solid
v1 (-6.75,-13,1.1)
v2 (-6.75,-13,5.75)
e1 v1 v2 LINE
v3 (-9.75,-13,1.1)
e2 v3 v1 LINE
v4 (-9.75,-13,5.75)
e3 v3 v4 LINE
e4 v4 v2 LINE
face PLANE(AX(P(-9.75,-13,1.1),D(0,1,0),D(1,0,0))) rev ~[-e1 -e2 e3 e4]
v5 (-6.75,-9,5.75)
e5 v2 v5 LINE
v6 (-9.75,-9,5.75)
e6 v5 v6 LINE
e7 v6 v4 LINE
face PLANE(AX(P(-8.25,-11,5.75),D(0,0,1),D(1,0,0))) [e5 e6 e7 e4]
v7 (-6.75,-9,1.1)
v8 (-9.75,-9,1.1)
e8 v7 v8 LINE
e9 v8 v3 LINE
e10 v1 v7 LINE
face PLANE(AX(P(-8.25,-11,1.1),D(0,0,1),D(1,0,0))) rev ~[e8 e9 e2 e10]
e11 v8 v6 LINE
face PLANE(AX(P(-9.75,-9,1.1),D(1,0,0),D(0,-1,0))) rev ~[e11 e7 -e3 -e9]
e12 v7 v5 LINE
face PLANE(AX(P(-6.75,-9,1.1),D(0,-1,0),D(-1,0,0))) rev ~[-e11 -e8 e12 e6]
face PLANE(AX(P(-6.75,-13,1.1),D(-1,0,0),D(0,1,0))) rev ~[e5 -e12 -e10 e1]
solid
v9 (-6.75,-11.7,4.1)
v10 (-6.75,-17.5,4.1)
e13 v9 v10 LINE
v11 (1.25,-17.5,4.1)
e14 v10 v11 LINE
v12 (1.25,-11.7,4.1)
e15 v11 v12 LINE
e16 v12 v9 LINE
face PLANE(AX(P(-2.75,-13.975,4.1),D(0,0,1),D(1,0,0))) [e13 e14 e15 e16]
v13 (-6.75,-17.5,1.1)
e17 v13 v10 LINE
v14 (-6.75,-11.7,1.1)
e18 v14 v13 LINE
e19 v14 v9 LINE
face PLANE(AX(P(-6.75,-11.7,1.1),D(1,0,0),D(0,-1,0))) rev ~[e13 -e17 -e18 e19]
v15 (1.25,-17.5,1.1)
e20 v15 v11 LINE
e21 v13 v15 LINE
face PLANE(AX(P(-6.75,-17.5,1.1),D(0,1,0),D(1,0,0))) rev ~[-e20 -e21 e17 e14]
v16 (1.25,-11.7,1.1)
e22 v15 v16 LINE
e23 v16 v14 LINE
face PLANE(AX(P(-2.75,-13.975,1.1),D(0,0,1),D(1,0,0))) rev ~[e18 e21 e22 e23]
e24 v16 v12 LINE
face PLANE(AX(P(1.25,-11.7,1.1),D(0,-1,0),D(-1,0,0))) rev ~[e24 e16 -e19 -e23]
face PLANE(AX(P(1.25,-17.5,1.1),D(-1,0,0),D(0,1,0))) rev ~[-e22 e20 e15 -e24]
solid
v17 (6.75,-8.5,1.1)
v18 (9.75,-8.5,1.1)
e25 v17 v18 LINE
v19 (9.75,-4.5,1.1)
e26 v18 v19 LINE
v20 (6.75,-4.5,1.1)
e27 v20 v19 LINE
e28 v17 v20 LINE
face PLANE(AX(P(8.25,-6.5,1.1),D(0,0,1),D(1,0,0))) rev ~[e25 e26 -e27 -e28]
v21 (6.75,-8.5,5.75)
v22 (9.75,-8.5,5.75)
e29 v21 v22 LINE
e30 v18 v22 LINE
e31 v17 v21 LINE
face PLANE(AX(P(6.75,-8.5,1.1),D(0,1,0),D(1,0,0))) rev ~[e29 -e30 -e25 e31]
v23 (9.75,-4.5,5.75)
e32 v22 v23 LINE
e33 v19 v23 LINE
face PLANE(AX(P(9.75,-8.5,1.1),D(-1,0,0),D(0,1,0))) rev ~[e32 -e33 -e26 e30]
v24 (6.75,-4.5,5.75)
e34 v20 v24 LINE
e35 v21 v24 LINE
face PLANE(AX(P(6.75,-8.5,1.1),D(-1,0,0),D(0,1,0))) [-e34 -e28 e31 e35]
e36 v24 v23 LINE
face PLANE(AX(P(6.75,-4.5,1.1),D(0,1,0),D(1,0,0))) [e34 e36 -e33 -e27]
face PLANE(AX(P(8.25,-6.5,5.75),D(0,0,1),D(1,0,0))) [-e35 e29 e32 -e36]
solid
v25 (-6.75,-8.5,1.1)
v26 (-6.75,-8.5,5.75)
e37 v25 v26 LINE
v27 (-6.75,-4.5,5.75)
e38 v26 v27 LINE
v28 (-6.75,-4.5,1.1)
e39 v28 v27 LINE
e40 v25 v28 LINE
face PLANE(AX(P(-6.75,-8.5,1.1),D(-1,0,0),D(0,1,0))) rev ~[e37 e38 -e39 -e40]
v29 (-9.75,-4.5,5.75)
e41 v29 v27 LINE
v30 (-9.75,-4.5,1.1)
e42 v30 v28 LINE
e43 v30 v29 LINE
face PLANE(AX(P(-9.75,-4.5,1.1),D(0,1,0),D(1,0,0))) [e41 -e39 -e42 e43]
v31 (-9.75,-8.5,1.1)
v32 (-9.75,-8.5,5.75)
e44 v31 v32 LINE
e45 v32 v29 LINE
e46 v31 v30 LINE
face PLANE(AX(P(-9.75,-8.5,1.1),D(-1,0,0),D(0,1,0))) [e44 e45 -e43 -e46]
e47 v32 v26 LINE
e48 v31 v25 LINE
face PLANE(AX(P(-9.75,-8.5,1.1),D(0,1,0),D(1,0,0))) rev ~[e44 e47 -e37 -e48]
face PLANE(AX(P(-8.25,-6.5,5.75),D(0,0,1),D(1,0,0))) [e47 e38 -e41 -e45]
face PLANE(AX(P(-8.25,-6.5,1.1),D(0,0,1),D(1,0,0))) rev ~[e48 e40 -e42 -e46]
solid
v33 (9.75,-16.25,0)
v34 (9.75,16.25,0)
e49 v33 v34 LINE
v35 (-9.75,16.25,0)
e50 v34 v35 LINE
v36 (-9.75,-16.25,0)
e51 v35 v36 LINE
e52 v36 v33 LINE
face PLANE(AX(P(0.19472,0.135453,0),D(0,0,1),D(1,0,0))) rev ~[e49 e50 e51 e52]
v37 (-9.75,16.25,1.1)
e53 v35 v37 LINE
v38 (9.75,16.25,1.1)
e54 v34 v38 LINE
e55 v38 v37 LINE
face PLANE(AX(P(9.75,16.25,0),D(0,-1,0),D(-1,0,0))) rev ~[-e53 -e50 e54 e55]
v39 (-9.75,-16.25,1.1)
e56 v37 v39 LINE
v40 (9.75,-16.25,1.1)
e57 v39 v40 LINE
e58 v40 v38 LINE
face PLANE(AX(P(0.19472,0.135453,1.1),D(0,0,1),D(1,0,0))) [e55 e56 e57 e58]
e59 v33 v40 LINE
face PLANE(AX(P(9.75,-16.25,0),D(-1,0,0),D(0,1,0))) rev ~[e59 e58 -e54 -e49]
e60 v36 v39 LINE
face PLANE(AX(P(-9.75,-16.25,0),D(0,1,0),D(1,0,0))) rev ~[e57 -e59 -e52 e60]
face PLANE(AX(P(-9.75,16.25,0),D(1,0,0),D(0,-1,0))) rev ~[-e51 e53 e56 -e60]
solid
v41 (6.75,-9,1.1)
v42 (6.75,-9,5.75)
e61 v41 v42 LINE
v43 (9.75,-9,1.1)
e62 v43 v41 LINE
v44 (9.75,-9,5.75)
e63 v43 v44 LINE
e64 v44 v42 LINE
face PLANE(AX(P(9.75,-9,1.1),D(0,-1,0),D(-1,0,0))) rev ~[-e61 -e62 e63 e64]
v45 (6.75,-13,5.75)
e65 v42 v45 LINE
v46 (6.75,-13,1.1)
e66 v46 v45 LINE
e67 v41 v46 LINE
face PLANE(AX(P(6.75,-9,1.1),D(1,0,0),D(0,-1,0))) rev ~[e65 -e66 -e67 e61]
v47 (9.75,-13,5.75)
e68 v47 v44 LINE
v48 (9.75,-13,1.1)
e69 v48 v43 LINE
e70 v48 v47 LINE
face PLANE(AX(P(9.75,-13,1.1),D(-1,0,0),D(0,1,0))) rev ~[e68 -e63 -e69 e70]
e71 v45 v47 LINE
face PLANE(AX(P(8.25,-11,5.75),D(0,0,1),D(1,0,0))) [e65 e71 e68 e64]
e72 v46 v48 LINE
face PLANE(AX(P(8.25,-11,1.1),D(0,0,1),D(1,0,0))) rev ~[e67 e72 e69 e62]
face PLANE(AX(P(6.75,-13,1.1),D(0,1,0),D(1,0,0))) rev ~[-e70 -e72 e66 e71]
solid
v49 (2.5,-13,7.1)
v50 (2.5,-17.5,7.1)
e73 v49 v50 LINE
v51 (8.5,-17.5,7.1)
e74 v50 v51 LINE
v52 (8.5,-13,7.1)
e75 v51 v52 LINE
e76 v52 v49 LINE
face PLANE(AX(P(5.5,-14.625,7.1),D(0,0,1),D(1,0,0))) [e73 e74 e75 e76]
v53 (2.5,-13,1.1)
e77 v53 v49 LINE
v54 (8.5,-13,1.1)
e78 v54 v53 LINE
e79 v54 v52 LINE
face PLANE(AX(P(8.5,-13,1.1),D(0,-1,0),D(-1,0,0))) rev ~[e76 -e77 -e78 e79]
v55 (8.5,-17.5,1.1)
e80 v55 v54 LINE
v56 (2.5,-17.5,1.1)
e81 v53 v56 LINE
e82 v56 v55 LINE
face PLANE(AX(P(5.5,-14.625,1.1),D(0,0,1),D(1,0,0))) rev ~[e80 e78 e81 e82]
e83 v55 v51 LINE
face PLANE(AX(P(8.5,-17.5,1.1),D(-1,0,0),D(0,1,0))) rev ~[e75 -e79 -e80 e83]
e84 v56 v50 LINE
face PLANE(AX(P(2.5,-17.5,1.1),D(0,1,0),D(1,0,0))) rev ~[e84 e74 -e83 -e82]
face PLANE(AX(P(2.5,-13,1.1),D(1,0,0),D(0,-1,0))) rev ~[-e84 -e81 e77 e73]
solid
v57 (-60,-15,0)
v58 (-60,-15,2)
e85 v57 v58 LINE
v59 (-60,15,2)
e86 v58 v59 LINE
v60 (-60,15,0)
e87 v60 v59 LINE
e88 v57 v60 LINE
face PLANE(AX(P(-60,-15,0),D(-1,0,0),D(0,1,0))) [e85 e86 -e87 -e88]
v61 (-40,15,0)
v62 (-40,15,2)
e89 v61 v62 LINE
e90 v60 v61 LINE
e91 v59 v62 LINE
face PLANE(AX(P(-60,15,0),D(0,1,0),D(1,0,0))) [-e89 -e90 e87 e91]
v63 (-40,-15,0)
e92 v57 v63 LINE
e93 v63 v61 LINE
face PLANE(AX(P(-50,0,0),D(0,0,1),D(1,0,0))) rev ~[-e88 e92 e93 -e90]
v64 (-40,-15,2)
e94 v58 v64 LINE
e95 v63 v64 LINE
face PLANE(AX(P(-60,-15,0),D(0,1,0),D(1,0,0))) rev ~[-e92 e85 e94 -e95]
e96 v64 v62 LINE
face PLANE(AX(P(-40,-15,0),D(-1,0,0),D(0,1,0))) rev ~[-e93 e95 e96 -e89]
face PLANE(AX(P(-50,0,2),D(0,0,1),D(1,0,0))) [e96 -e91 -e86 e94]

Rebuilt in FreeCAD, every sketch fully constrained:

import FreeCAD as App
import Part
import Sketcher
from FreeCAD import Vector

doc = App.newDocument("Part")
params = doc.addObject("Spreadsheet::Sheet", "Params")
for row, (alias, value) in enumerate([
    ("sketch1_width", "19.5 mm"),
    ("sketch1_height", "32.5 mm"),
    ("pad1_length", "1.1 mm"),
    ("sketch2_width", "8 mm"),
    ("sketch2_height", "5.8 mm"),
    ("pad2_length", "3 mm"),
    ("sketch3_width", "3 mm"),
    ("sketch3_height", "4 mm"),
    ("pad3_length", "4.65 mm"),
    ("sketch4_width", "3 mm"),
    ("sketch4_height", "4 mm"),
    ("pad4_length", "4.65 mm"),
    ("sketch5_width", "3 mm"),
    ("sketch5_height", "4 mm"),
    ("pad5_length", "4.65 mm"),
    ("sketch6_width", "3 mm"),
    ("sketch6_height", "4 mm"),
    ("pad6_length", "4.65 mm"),
    ("sketch7_width", "6 mm"),
    ("sketch7_height", "4.5 mm"),
    ("pad7_length", "6 mm"),
    ("sketch8_width", "20 mm"),
    ("sketch8_height", "30 mm"),
    ("pad8_length", "2 mm"),
], start=1):
    params.set(f"A{row}", alias)
    params.set(f"B{row}", "=" + value)
    params.setAlias(f"B{row}", alias)

body = doc.addObject("PartDesign::Body", "Body")

sketch1 = body.newObject("Sketcher::SketchObject", "Sketch")
sketch1.AttachmentSupport = (doc.getObject("XY_Plane"), [""])
sketch1.MapMode = "FlatFace"
sketch1.addGeometry(Part.LineSegment(Vector(9.75, 16.25, 0), Vector(-9.75, 16.25, 0)), False)
sketch1.addGeometry(Part.LineSegment(Vector(-9.75, 16.25, 0), Vector(-9.75, -16.25, 0)), False)
sketch1.addGeometry(Part.LineSegment(Vector(-9.75, -16.25, 0), Vector(9.75, -16.25, 0)), False)
sketch1.addGeometry(Part.LineSegment(Vector(9.75, -16.25, 0), Vector(9.75, 16.25, 0)), False)
sketch1.addConstraint(Sketcher.Constraint("Coincident", 0, 2, 1, 1))
sketch1.addConstraint(Sketcher.Constraint("Coincident", 1, 2, 2, 1))
sketch1.addConstraint(Sketcher.Constraint("Coincident", 2, 2, 3, 1))
sketch1.addConstraint(Sketcher.Constraint("Coincident", 3, 2, 0, 1))
sketch1.addConstraint(Sketcher.Constraint("Horizontal", 0))
sketch1.addConstraint(Sketcher.Constraint("Vertical", 1))
sketch1.addConstraint(Sketcher.Constraint("Horizontal", 2))
sketch1.addConstraint(Sketcher.Constraint("Vertical", 3))
sketch1.addConstraint(Sketcher.Constraint("Symmetric", 0, 2, 2, 2, -1, 1))
sketch1.addConstraint(Sketcher.Constraint("DistanceX", 0, 2, 0, 1, 19.5))
sketch1.addConstraint(Sketcher.Constraint("DistanceY", 1, 2, 1, 1, 32.5))
sketch1.setExpression("Constraints[9]", "Params.sketch1_width")
sketch1.setExpression("Constraints[10]", "Params.sketch1_height")
pad1 = body.newObject("PartDesign::Pad", "Pad")
pad1.Profile = sketch1
pad1.setExpression("Length", "Params.pad1_length")
body2 = doc.addObject("PartDesign::Body", "Body001")

sketch2 = body2.newObject("Sketcher::SketchObject", "Sketch001")
sketch2.AttachmentSupport = (doc.getObject("XY_Plane001"), [""])
sketch2.MapMode = "FlatFace"
sketch2.AttachmentOffset = App.Placement(Vector(0, 0, 1.1), App.Rotation())
sketch2.addGeometry(Part.LineSegment(Vector(-6.75, -11.7, 0), Vector(-6.75, -17.5, 0)), False)
sketch2.addGeometry(Part.LineSegment(Vector(-6.75, -17.5, 0), Vector(1.25, -17.5, 0)), False)
sketch2.addGeometry(Part.LineSegment(Vector(1.25, -17.5, 0), Vector(1.25, -11.7, 0)), False)
sketch2.addGeometry(Part.LineSegment(Vector(1.25, -11.7, 0), Vector(-6.75, -11.7, 0)), False)
sketch2.addConstraint(Sketcher.Constraint("Coincident", 0, 2, 1, 1))
sketch2.addConstraint(Sketcher.Constraint("Coincident", 1, 2, 2, 1))
sketch2.addConstraint(Sketcher.Constraint("Coincident", 2, 2, 3, 1))
sketch2.addConstraint(Sketcher.Constraint("Coincident", 3, 2, 0, 1))
sketch2.addConstraint(Sketcher.Constraint("Vertical", 0))
sketch2.addConstraint(Sketcher.Constraint("Horizontal", 1))
sketch2.addConstraint(Sketcher.Constraint("Vertical", 2))
sketch2.addConstraint(Sketcher.Constraint("Horizontal", 3))
sketch2.addConstraint(Sketcher.Constraint("DistanceX", 1, 1, 1, 2, 8.0))
sketch2.addConstraint(Sketcher.Constraint("DistanceY", 0, 2, 0, 1, 5.8))
sketch2.addConstraint(Sketcher.Constraint("DistanceY", 0, 2, -1, 1, 17.5))
sketch2.addConstraint(Sketcher.Constraint("DistanceX", 0, 2, -1, 1, 6.75))
sketch2.setExpression("Constraints[8]", "Params.sketch2_width")
sketch2.setExpression("Constraints[9]", "Params.sketch2_height")
pad2 = body2.newObject("PartDesign::Pad", "Pad001")
pad2.Profile = sketch2
pad2.setExpression("Length", "Params.pad2_length")
body3 = doc.addObject("PartDesign::Body", "Body002")

sketch3 = body3.newObject("Sketcher::SketchObject", "Sketch002")
sketch3.AttachmentSupport = (doc.getObject("XY_Plane002"), [""])
sketch3.MapMode = "FlatFace"
sketch3.AttachmentOffset = App.Placement(Vector(0, 0, 1.1), App.Rotation())
sketch3.addGeometry(Part.LineSegment(Vector(-6.75, -9, 0), Vector(-9.75, -9, 0)), False)
sketch3.addGeometry(Part.LineSegment(Vector(-9.75, -9, 0), Vector(-9.75, -13, 0)), False)
sketch3.addGeometry(Part.LineSegment(Vector(-9.75, -13, 0), Vector(-6.75, -13, 0)), False)
sketch3.addGeometry(Part.LineSegment(Vector(-6.75, -13, 0), Vector(-6.75, -9, 0)), False)
sketch3.addConstraint(Sketcher.Constraint("Coincident", 0, 2, 1, 1))
sketch3.addConstraint(Sketcher.Constraint("Coincident", 1, 2, 2, 1))
sketch3.addConstraint(Sketcher.Constraint("Coincident", 2, 2, 3, 1))
sketch3.addConstraint(Sketcher.Constraint("Coincident", 3, 2, 0, 1))
sketch3.addConstraint(Sketcher.Constraint("Horizontal", 0))
sketch3.addConstraint(Sketcher.Constraint("Vertical", 1))
sketch3.addConstraint(Sketcher.Constraint("Horizontal", 2))
sketch3.addConstraint(Sketcher.Constraint("Vertical", 3))
sketch3.addConstraint(Sketcher.Constraint("DistanceX", 0, 2, 0, 1, 3.0))
sketch3.addConstraint(Sketcher.Constraint("DistanceY", 1, 2, 1, 1, 4.0))
sketch3.addConstraint(Sketcher.Constraint("DistanceY", 0, 2, -1, 1, 9.0))
sketch3.addConstraint(Sketcher.Constraint("DistanceX", 0, 2, -1, 1, 9.75))
sketch3.setExpression("Constraints[8]", "Params.sketch3_width")
sketch3.setExpression("Constraints[9]", "Params.sketch3_height")
pad3 = body3.newObject("PartDesign::Pad", "Pad002")
pad3.Profile = sketch3
pad3.setExpression("Length", "Params.pad3_length")
body4 = doc.addObject("PartDesign::Body", "Body003")

sketch4 = body4.newObject("Sketcher::SketchObject", "Sketch003")
sketch4.AttachmentSupport = (doc.getObject("XY_Plane003"), [""])
sketch4.MapMode = "FlatFace"
sketch4.AttachmentOffset = App.Placement(Vector(0, 0, 1.1), App.Rotation())
sketch4.addGeometry(Part.LineSegment(Vector(-9.75, -4.5, 0), Vector(-9.75, -8.5, 0)), False)
sketch4.addGeometry(Part.LineSegment(Vector(-9.75, -8.5, 0), Vector(-6.75, -8.5, 0)), False)
sketch4.addGeometry(Part.LineSegment(Vector(-6.75, -8.5, 0), Vector(-6.75, -4.5, 0)), False)
sketch4.addGeometry(Part.LineSegment(Vector(-6.75, -4.5, 0), Vector(-9.75, -4.5, 0)), False)
sketch4.addConstraint(Sketcher.Constraint("Coincident", 0, 2, 1, 1))
sketch4.addConstraint(Sketcher.Constraint("Coincident", 1, 2, 2, 1))
sketch4.addConstraint(Sketcher.Constraint("Coincident", 2, 2, 3, 1))
sketch4.addConstraint(Sketcher.Constraint("Coincident", 3, 2, 0, 1))
sketch4.addConstraint(Sketcher.Constraint("Vertical", 0))
sketch4.addConstraint(Sketcher.Constraint("Horizontal", 1))
sketch4.addConstraint(Sketcher.Constraint("Vertical", 2))
sketch4.addConstraint(Sketcher.Constraint("Horizontal", 3))
sketch4.addConstraint(Sketcher.Constraint("DistanceX", 1, 1, 1, 2, 3.0))
sketch4.addConstraint(Sketcher.Constraint("DistanceY", 0, 2, 0, 1, 4.0))
sketch4.addConstraint(Sketcher.Constraint("DistanceY", 0, 2, -1, 1, 8.5))
sketch4.addConstraint(Sketcher.Constraint("DistanceX", 0, 2, -1, 1, 9.75))
sketch4.setExpression("Constraints[8]", "Params.sketch4_width")
sketch4.setExpression("Constraints[9]", "Params.sketch4_height")
pad4 = body4.newObject("PartDesign::Pad", "Pad003")
pad4.Profile = sketch4
pad4.setExpression("Length", "Params.pad4_length")
body5 = doc.addObject("PartDesign::Body", "Body004")

sketch5 = body5.newObject("Sketcher::SketchObject", "Sketch004")
sketch5.AttachmentSupport = (doc.getObject("XY_Plane004"), [""])
sketch5.MapMode = "FlatFace"
sketch5.AttachmentOffset = App.Placement(Vector(0, 0, 1.1), App.Rotation())
sketch5.addGeometry(Part.LineSegment(Vector(9.75, -13, 0), Vector(9.75, -9, 0)), False)
sketch5.addGeometry(Part.LineSegment(Vector(9.75, -9, 0), Vector(6.75, -9, 0)), False)
sketch5.addGeometry(Part.LineSegment(Vector(6.75, -9, 0), Vector(6.75, -13, 0)), False)
sketch5.addGeometry(Part.LineSegment(Vector(6.75, -13, 0), Vector(9.75, -13, 0)), False)
sketch5.addConstraint(Sketcher.Constraint("Coincident", 0, 2, 1, 1))
sketch5.addConstraint(Sketcher.Constraint("Coincident", 1, 2, 2, 1))
sketch5.addConstraint(Sketcher.Constraint("Coincident", 2, 2, 3, 1))
sketch5.addConstraint(Sketcher.Constraint("Coincident", 3, 2, 0, 1))
sketch5.addConstraint(Sketcher.Constraint("Vertical", 0))
sketch5.addConstraint(Sketcher.Constraint("Horizontal", 1))
sketch5.addConstraint(Sketcher.Constraint("Vertical", 2))
sketch5.addConstraint(Sketcher.Constraint("Horizontal", 3))
sketch5.addConstraint(Sketcher.Constraint("DistanceX", 1, 2, 1, 1, 3.0))
sketch5.addConstraint(Sketcher.Constraint("DistanceY", 0, 1, 0, 2, 4.0))
sketch5.addConstraint(Sketcher.Constraint("DistanceY", 0, 2, -1, 1, 9.0))
sketch5.addConstraint(Sketcher.Constraint("DistanceX", -1, 1, 0, 2, 9.75))
sketch5.setExpression("Constraints[8]", "Params.sketch5_width")
sketch5.setExpression("Constraints[9]", "Params.sketch5_height")
pad5 = body5.newObject("PartDesign::Pad", "Pad004")
pad5.Profile = sketch5
pad5.setExpression("Length", "Params.pad5_length")
body6 = doc.addObject("PartDesign::Body", "Body005")

sketch6 = body6.newObject("Sketcher::SketchObject", "Sketch005")
sketch6.AttachmentSupport = (doc.getObject("XY_Plane005"), [""])
sketch6.MapMode = "FlatFace"
sketch6.AttachmentOffset = App.Placement(Vector(0, 0, 1.1), App.Rotation())
sketch6.addGeometry(Part.LineSegment(Vector(6.75, -4.5, 0), Vector(6.75, -8.5, 0)), False)
sketch6.addGeometry(Part.LineSegment(Vector(6.75, -8.5, 0), Vector(9.75, -8.5, 0)), False)
sketch6.addGeometry(Part.LineSegment(Vector(9.75, -8.5, 0), Vector(9.75, -4.5, 0)), False)
sketch6.addGeometry(Part.LineSegment(Vector(9.75, -4.5, 0), Vector(6.75, -4.5, 0)), False)
sketch6.addConstraint(Sketcher.Constraint("Coincident", 0, 2, 1, 1))
sketch6.addConstraint(Sketcher.Constraint("Coincident", 1, 2, 2, 1))
sketch6.addConstraint(Sketcher.Constraint("Coincident", 2, 2, 3, 1))
sketch6.addConstraint(Sketcher.Constraint("Coincident", 3, 2, 0, 1))
sketch6.addConstraint(Sketcher.Constraint("Vertical", 0))
sketch6.addConstraint(Sketcher.Constraint("Horizontal", 1))
sketch6.addConstraint(Sketcher.Constraint("Vertical", 2))
sketch6.addConstraint(Sketcher.Constraint("Horizontal", 3))
sketch6.addConstraint(Sketcher.Constraint("DistanceX", 1, 1, 1, 2, 3.0))
sketch6.addConstraint(Sketcher.Constraint("DistanceY", 0, 2, 0, 1, 4.0))
sketch6.addConstraint(Sketcher.Constraint("DistanceY", 0, 2, -1, 1, 8.5))
sketch6.addConstraint(Sketcher.Constraint("DistanceX", -1, 1, 0, 2, 6.75))
sketch6.setExpression("Constraints[8]", "Params.sketch6_width")
sketch6.setExpression("Constraints[9]", "Params.sketch6_height")
pad6 = body6.newObject("PartDesign::Pad", "Pad005")
pad6.Profile = sketch6
pad6.setExpression("Length", "Params.pad6_length")
body7 = doc.addObject("PartDesign::Body", "Body006")

sketch7 = body7.newObject("Sketcher::SketchObject", "Sketch006")
sketch7.AttachmentSupport = (doc.getObject("XY_Plane006"), [""])
sketch7.MapMode = "FlatFace"
sketch7.AttachmentOffset = App.Placement(Vector(0, 0, 1.1), App.Rotation())
sketch7.addGeometry(Part.LineSegment(Vector(8.5, -13, 0), Vector(2.5, -13, 0)), False)
sketch7.addGeometry(Part.LineSegment(Vector(2.5, -13, 0), Vector(2.5, -17.5, 0)), False)
sketch7.addGeometry(Part.LineSegment(Vector(2.5, -17.5, 0), Vector(8.5, -17.5, 0)), False)
sketch7.addGeometry(Part.LineSegment(Vector(8.5, -17.5, 0), Vector(8.5, -13, 0)), False)
sketch7.addConstraint(Sketcher.Constraint("Coincident", 0, 2, 1, 1))
sketch7.addConstraint(Sketcher.Constraint("Coincident", 1, 2, 2, 1))
sketch7.addConstraint(Sketcher.Constraint("Coincident", 2, 2, 3, 1))
sketch7.addConstraint(Sketcher.Constraint("Coincident", 3, 2, 0, 1))
sketch7.addConstraint(Sketcher.Constraint("Horizontal", 0))
sketch7.addConstraint(Sketcher.Constraint("Vertical", 1))
sketch7.addConstraint(Sketcher.Constraint("Horizontal", 2))
sketch7.addConstraint(Sketcher.Constraint("Vertical", 3))
sketch7.addConstraint(Sketcher.Constraint("DistanceX", 0, 2, 0, 1, 6.0))
sketch7.addConstraint(Sketcher.Constraint("DistanceY", 1, 2, 1, 1, 4.5))
sketch7.addConstraint(Sketcher.Constraint("DistanceY", 0, 2, -1, 1, 13.0))
sketch7.addConstraint(Sketcher.Constraint("DistanceX", -1, 1, 0, 2, 2.5))
sketch7.setExpression("Constraints[8]", "Params.sketch7_width")
sketch7.setExpression("Constraints[9]", "Params.sketch7_height")
pad7 = body7.newObject("PartDesign::Pad", "Pad006")
pad7.Profile = sketch7
pad7.setExpression("Length", "Params.pad7_length")
body8 = doc.addObject("PartDesign::Body", "Body007")

sketch8 = body8.newObject("Sketcher::SketchObject", "Sketch007")
sketch8.AttachmentSupport = (doc.getObject("XY_Plane007"), [""])
sketch8.MapMode = "FlatFace"
sketch8.addGeometry(Part.LineSegment(Vector(-60, 15, 0), Vector(-60, -15, 0)), False)
sketch8.addGeometry(Part.LineSegment(Vector(-60, -15, 0), Vector(-40, -15, 0)), False)
sketch8.addGeometry(Part.LineSegment(Vector(-40, -15, 0), Vector(-40, 15, 0)), False)
sketch8.addGeometry(Part.LineSegment(Vector(-40, 15, 0), Vector(-60, 15, 0)), False)
sketch8.addConstraint(Sketcher.Constraint("Coincident", 0, 2, 1, 1))
sketch8.addConstraint(Sketcher.Constraint("Coincident", 1, 2, 2, 1))
sketch8.addConstraint(Sketcher.Constraint("Coincident", 2, 2, 3, 1))
sketch8.addConstraint(Sketcher.Constraint("Coincident", 3, 2, 0, 1))
sketch8.addConstraint(Sketcher.Constraint("Vertical", 0))
sketch8.addConstraint(Sketcher.Constraint("Horizontal", 1))
sketch8.addConstraint(Sketcher.Constraint("Vertical", 2))
sketch8.addConstraint(Sketcher.Constraint("Horizontal", 3))
sketch8.addConstraint(Sketcher.Constraint("DistanceX", 1, 1, 1, 2, 20.0))
sketch8.addConstraint(Sketcher.Constraint("DistanceY", 0, 2, 0, 1, 30.0))
sketch8.addConstraint(Sketcher.Constraint("DistanceX", 0, 2, -1, 1, 60.0))
sketch8.addConstraint(Sketcher.Constraint("DistanceY", 0, 2, -1, 1, 15.0))
sketch8.setExpression("Constraints[8]", "Params.sketch8_width")
sketch8.setExpression("Constraints[9]", "Params.sketch8_height")
pad8 = body8.newObject("PartDesign::Pad", "Pad007")
pad8.Profile = sketch8
pad8.setExpression("Length", "Params.pad8_length")

doc.recompute()
